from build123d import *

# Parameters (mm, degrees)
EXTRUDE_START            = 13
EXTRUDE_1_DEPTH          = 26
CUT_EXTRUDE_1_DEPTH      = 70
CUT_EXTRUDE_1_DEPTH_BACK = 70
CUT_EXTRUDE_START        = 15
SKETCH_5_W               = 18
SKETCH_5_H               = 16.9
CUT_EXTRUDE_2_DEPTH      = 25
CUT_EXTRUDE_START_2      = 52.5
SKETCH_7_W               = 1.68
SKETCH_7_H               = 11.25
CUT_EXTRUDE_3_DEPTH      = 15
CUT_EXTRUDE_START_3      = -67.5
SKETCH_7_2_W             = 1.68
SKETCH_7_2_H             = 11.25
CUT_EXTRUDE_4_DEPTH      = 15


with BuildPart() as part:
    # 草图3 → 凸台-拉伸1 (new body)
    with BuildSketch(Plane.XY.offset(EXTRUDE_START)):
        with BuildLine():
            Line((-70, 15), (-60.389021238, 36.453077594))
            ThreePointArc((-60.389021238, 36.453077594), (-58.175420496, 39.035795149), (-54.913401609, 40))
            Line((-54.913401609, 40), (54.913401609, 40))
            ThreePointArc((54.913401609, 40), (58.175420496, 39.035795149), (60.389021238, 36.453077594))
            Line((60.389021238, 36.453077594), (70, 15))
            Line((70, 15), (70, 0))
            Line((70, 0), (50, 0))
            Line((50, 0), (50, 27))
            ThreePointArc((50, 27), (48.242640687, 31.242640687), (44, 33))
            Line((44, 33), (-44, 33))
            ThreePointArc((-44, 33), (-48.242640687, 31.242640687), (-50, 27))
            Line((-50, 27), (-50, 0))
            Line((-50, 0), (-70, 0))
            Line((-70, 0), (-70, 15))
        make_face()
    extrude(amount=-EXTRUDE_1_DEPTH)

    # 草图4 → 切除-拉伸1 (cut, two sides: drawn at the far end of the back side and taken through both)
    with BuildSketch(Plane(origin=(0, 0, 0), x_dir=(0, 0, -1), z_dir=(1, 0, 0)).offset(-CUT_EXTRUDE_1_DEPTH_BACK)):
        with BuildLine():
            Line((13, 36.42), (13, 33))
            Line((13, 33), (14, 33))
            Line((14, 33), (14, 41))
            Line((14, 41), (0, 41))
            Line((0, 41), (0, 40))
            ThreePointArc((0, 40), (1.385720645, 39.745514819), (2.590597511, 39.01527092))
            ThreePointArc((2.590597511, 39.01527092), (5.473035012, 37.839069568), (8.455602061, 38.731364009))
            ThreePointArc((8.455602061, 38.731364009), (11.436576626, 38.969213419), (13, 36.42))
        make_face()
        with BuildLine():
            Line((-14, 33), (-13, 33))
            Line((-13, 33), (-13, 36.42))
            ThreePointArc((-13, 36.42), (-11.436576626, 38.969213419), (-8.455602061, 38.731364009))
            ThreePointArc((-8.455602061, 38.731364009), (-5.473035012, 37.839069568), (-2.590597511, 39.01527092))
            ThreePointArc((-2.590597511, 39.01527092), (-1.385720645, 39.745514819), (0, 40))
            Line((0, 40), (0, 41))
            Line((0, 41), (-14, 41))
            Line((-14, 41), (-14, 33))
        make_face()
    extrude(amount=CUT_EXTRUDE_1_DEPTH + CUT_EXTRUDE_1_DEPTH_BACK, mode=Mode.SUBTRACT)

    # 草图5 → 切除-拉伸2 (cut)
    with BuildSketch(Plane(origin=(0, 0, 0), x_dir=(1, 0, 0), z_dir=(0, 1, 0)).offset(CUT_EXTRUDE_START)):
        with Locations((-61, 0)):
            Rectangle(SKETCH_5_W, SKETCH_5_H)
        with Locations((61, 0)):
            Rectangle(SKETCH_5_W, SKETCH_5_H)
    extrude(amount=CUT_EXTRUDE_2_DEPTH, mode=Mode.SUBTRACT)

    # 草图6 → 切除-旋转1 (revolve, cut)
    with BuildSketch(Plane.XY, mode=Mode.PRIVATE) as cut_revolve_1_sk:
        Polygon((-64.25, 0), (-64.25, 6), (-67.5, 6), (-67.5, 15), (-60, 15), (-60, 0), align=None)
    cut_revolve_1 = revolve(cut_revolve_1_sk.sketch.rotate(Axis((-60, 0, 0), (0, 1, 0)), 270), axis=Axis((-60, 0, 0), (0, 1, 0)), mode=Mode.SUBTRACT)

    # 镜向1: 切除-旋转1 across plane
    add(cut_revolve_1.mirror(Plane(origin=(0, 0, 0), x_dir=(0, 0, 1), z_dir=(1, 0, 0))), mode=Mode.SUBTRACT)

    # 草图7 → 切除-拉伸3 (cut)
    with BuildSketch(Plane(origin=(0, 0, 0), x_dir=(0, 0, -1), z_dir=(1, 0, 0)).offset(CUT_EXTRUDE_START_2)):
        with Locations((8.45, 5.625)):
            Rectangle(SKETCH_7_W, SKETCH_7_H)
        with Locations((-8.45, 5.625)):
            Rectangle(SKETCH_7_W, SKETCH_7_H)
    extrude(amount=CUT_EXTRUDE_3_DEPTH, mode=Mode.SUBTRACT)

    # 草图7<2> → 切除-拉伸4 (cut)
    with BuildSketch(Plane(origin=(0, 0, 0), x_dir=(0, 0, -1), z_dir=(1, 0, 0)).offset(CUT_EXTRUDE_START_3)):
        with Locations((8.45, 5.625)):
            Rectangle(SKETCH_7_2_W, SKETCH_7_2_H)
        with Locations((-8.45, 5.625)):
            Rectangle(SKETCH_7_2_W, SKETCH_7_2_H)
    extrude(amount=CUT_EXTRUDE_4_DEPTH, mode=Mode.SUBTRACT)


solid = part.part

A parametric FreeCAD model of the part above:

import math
import FreeCAD as App
import Part
import Sketcher
from FreeCAD import Vector


def add_polygon(sketch, points):
    """Adds a closed chain of lines whose ends are joined by coincident constraints."""
    first, n = sketch.GeometryCount, len(points)
    for a, b in zip(points, points[1:] + points[:1]):
        sketch.addGeometry(Part.LineSegment(App.Vector(*a, 0), App.Vector(*b, 0)), False)
    for i in range(n):
        sketch.addConstraint(Sketcher.Constraint("Coincident", first + i, 2, first + (i + 1) % n, 1))

doc = App.newDocument("Part")
body = doc.addObject("PartDesign::Body", "Body")

# Sketch on XY plane
sketch1 = body.newObject("Sketcher::SketchObject", "Sketch")
sketch1.AttachmentSupport = (doc.getObject("XY_Plane"), [""])
sketch1.MapMode = "FlatFace"
sketch1.AttachmentOffset = App.Placement(Vector(0, 0, 13), App.Rotation())
sketch1.addGeometry([
    Part.LineSegment(Vector(-60, 36, 0), Vector(-70, 15, 0)),  # 0
    Part.LineSegment(Vector(-70, 15, 0), Vector(-70, 0, 0)),  # 1
    Part.LineSegment(Vector(-70, 0, 0), Vector(-50, 0, 0)),  # 2
    Part.LineSegment(Vector(-50, 0, 0), Vector(-50, 27, 0)),  # 3
    Part.ArcOfCircle(Part.Circle(Vector(-44, 27, 0), Vector(0, 0, 1), 6), math.radians(90), math.radians(180)),  # 4
    Part.LineSegment(Vector(-44, 33, 0), Vector(44, 33, 0)),  # 5
    Part.ArcOfCircle(Part.Circle(Vector(44, 27, 0), Vector(0, 0, 1), 6), math.radians(0), math.radians(90)),  # 6
    Part.LineSegment(Vector(50, 27, 0), Vector(50, 0, 0)),  # 7
    Part.LineSegment(Vector(50, 0, 0), Vector(70, 0, 0)),  # 8
    Part.LineSegment(Vector(70, 0, 0), Vector(70, 15, 0)),  # 9
    Part.LineSegment(Vector(70, 15, 0), Vector(60, 36, 0)),  # 10
    Part.ArcOfCircle(Part.Circle(Vector(55, 34, 0), Vector(0, 0, 1), 6), math.radians(24), math.radians(90)),  # 11
    Part.LineSegment(Vector(55, 40, 0), Vector(-55, 40, 0)),  # 12
    Part.ArcOfCircle(Part.Circle(Vector(-55, 34, 0), Vector(0, 0, 1), 6), math.radians(90), math.radians(156)),  # 13
], False)
sketch1.addConstraint([
    Sketcher.Constraint("Coincident", 0, 2, 1, 1),
    Sketcher.Constraint("Coincident", 1, 2, 2, 1),
    Sketcher.Constraint("Coincident", 2, 2, 3, 1),
    Sketcher.Constraint("Tangent", 3, 2, 4, 2),
    Sketcher.Constraint("Tangent", 4, 1, 5, 1),
    Sketcher.Constraint("Tangent", 5, 2, 6, 2),
    Sketcher.Constraint("Tangent", 6, 1, 7, 1),
    Sketcher.Constraint("Coincident", 7, 2, 8, 1),
    Sketcher.Constraint("Coincident", 8, 2, 9, 1),
    Sketcher.Constraint("Coincident", 9, 2, 10, 1),
    Sketcher.Constraint("Tangent", 10, 2, 11, 1),
    Sketcher.Constraint("Tangent", 11, 2, 12, 1),
    Sketcher.Constraint("Tangent", 12, 2, 13, 1),
    Sketcher.Constraint("Tangent", 13, 2, 0, 1),
    Sketcher.Constraint("Vertical", 1),
    Sketcher.Constraint("Horizontal", 2),
    Sketcher.Constraint("Vertical", 3),
    Sketcher.Constraint("Horizontal", 5),
    Sketcher.Constraint("Vertical", 7),
    Sketcher.Constraint("Horizontal", 8),
    Sketcher.Constraint("Vertical", 9),
    Sketcher.Constraint("Horizontal", 12),
    Sketcher.Constraint("Equal", 4, 6),
    Sketcher.Constraint("Equal", 6, 11),
    Sketcher.Constraint("Equal", 11, 13),
    Sketcher.Constraint("Symmetric", 2, 2, 7, 2, -1, 1),
    Sketcher.Constraint("Symmetric", 1, 2, 8, 2, -2),
    Sketcher.Constraint("Symmetric", 10, 2, 13, 2, -2),
    Sketcher.Constraint("Radius", 4, 6.0),
    Sketcher.Constraint("DistanceX", 2, 1, 2, 2, 20.0),
    Sketcher.Constraint("DistanceX", 5, 1, 5, 2, 88.0),
    Sketcher.Constraint("DistanceY", 1, 2, 1, 1, 15.0),
    Sketcher.Constraint("DistanceY", 3, 1, 3, 2, 27.0),
    Sketcher.Constraint("DistanceY", -1, 1, 11, 3, 34.0),
    Sketcher.Constraint("DistanceX", -1, 1, 11, 3, 54.913402),
])
pad1 = body.newObject("PartDesign::Pad", "Pad")
pad1.Profile = sketch1
pad1.Length = 26
pad1.Reversed = True

# Sketch on YZ plane
sketch2 = body.newObject("Sketcher::SketchObject", "Sketch001")
sketch2.AttachmentSupport = (doc.getObject("YZ_Plane"), [""])
sketch2.MapMode = "FlatFace"
sketch2.addGeometry([
    Part.LineSegment(Vector(36.4, -13, 0), Vector(33, -13, 0)),  # 0
    Part.LineSegment(Vector(33, -13, 0), Vector(33, -14, 0)),  # 1
    Part.LineSegment(Vector(33, -14, 0), Vector(41, -14, 0)),  # 2
    Part.LineSegment(Vector(41, -14, 0), Vector(41, 14, 0)),  # 3
    Part.LineSegment(Vector(41, 14, 0), Vector(33, 14, 0)),  # 4
    Part.LineSegment(Vector(33, 14, 0), Vector(33, 13, 0)),  # 5
    Part.LineSegment(Vector(33, 13, 0), Vector(36.4, 13, 0)),  # 6
    Part.ArcOfCircle(Part.Circle(Vector(36.4, 10.1, 0), Vector(0, 0, 1), 2.9), math.radians(-36), math.radians(90)),  # 7
    Part.ArcOfCircle(Part.Circle(Vector(42.5, 5.7, 0), Vector(0, 0, 1), 4.7), math.radians(144), math.radians(222)),  # 8
    Part.ArcOfCircle(Part.Circle(Vector(36.1, 0, 0), Vector(0, 0, 1), 3.9), math.radians(0), math.radians(42)),  # 9
    Part.ArcOfCircle(Part.Circle(Vector(36.1, 0, 0), Vector(0, 0, 1), 3.9), math.radians(-42), math.radians(0)),  # 10
    Part.ArcOfCircle(Part.Circle(Vector(42.5, -5.7, 0), Vector(0, 0, 1), 4.7), math.radians(138), math.radians(216)),  # 11
    Part.ArcOfCircle(Part.Circle(Vector(36.4, -10.1, 0), Vector(0, 0, 1), 2.9), math.radians(-90), math.radians(36)),  # 12
], False)
sketch2.addConstraint([
    Sketcher.Constraint("Coincident", 0, 2, 1, 1),
    Sketcher.Constraint("Coincident", 1, 2, 2, 1),
    Sketcher.Constraint("Coincident", 2, 2, 3, 1),
    Sketcher.Constraint("Coincident", 3, 2, 4, 1),
    Sketcher.Constraint("Coincident", 4, 2, 5, 1),
    Sketcher.Constraint("Coincident", 5, 2, 6, 1),
    Sketcher.Constraint("Tangent", 6, 2, 7, 2),
    Sketcher.Constraint("Tangent", 7, 1, 8, 1),
    Sketcher.Constraint("Tangent", 8, 2, 9, 2),
    Sketcher.Constraint("Tangent", 9, 1, 10, 2),
    Sketcher.Constraint("Tangent", 10, 1, 11, 1),
    Sketcher.Constraint("Tangent", 11, 2, 12, 2),
    Sketcher.Constraint("Tangent", 12, 1, 0, 1),
    Sketcher.Constraint("Horizontal", 0),
    Sketcher.Constraint("Vertical", 1),
    Sketcher.Constraint("Horizontal", 2),
    Sketcher.Constraint("Vertical", 3),
    Sketcher.Constraint("Horizontal", 4),
    Sketcher.Constraint("Vertical", 5),
    Sketcher.Constraint("Horizontal", 6),
    Sketcher.Constraint("Equal", 9, 10),
    Sketcher.Constraint("Equal", 8, 11),
    Sketcher.Constraint("Equal", 7, 12),
    Sketcher.Constraint("Symmetric", 8, 3, 11, 3, -1),
    Sketcher.Constraint("Symmetric", 1, 2, 4, 2, -1),
    Sketcher.Constraint("PointOnObject", 9, 1, -1),
    Sketcher.Constraint("Vertical", 7, 3, 12, 3),
    Sketcher.Constraint("Radius", 9, 3.9),
    Sketcher.Constraint("DistanceX", 2, 1, 2, 2, 8.0),
    Sketcher.Constraint("DistanceY", 1, 2, 1, 1, 1.0),
    Sketcher.Constraint("DistanceY", 3, 1, 3, 2, 28.0),
    Sketcher.Constraint("Radius", 7, 2.86),
    Sketcher.Constraint("Radius", 8, 4.68),
    Sketcher.Constraint("DistanceX", -1, 1, 0, 2, 33.0),
    Sketcher.Constraint("DistanceX", -1, 1, 9, 1, 40.0),
    Sketcher.Constraint("DistanceX", 0, 2, 0, 1, 3.42),
])
pocket1 = body.newObject("PartDesign::Pocket", "Pocket")
pocket1.Profile = sketch2
pocket1.Type = "TwoLengths"
pocket1.Length = 70
pocket1.Length2 = 70
pocket1.Reversed = True

# Sketch on XZ plane
sketch3 = body.newObject("Sketcher::SketchObject", "Sketch002")
sketch3.AttachmentSupport = (doc.getObject("XZ_Plane"), [""])
sketch3.MapMode = "FlatFace"
sketch3.AttachmentOffset = App.Placement(Vector(0, 0, -15), App.Rotation())
add_polygon(sketch3, [(-70, -8), (-70, 8), (-52, 8), (-52, -8)])  # lines 0-3
add_polygon(sketch3, [(52, -8), (52, 8), (70, 8), (70, -8)])  # lines 4-7
sketch3.addConstraint([
    Sketcher.Constraint("Vertical", 0),
    Sketcher.Constraint("Horizontal", 1),
    Sketcher.Constraint("Vertical", 2),
    Sketcher.Constraint("Horizontal", 3),
    Sketcher.Constraint("Vertical", 4),
    Sketcher.Constraint("Horizontal", 5),
    Sketcher.Constraint("Vertical", 6),
    Sketcher.Constraint("Horizontal", 7),
    Sketcher.Constraint("Symmetric", 2, 2, 4, 2, -1, 1),
    Sketcher.Constraint("Symmetric", 0, 2, 6, 2, -1, 1),
    Sketcher.Constraint("Horizontal", 1, 2, 4, 2),
    Sketcher.Constraint("DistanceX", 1, 1, 1, 2, 18.0),
    Sketcher.Constraint("DistanceY", 0, 1, 0, 2, 16.9),
    Sketcher.Constraint("DistanceX", 0, 2, -1, 1, 70.0),
])
pocket2 = body.newObject("PartDesign::Pocket", "Pocket001")
pocket2.Profile = sketch3
pocket2.Length = 25

# Sketch on XY plane
sketch4 = body.newObject("Sketcher::SketchObject", "Sketch003")
sketch4.AttachmentSupport = (doc.getObject("XY_Plane"), [""])
sketch4.MapMode = "FlatFace"
add_polygon(sketch4, [(-64.2, 6), (-64.2, 0), (-60, 0), (-60, 15), (-67.5, 15), (-67.5, 6)])  # lines 0-5
sketch4.addGeometry(Part.LineSegment(Vector(-60, 0, 0), Vector(-60, 15, 0)), True)  # axis
sketch4.addConstraint([
    Sketcher.Constraint("Vertical", 0),
    Sketcher.Constraint("Horizontal", 1),
    Sketcher.Constraint("Vertical", 2),
    Sketcher.Constraint("Horizontal", 3),
    Sketcher.Constraint("Vertical", 4),
    Sketcher.Constraint("Horizontal", 5),
    Sketcher.Constraint("Vertical", 6),
    Sketcher.Constraint("Coincident", 6, 1, 1, 2),
    Sketcher.Constraint("PointOnObject", 0, 2, -1),
    Sketcher.Constraint("Horizontal", 3, 2, 6, 2),
    Sketcher.Constraint("DistanceY", 0, 2, 0, 1, 6.0),
    Sketcher.Constraint("DistanceY", 2, 1, 2, 2, 15.0),
    Sketcher.Constraint("DistanceX", 3, 2, 3, 1, 7.5),
    Sketcher.Constraint("DistanceX", 1, 2, -1, 1, 60.0),
    Sketcher.Constraint("DistanceX", 1, 1, 1, 2, 4.25),
])
groove = body.newObject("PartDesign::Groove", "Groove")
groove.Profile = sketch4
groove.ReferenceAxis = (sketch4, ["Axis0"])
groove.Angle = 360
doc.recompute()

mirrored = body.newObject("PartDesign::Mirrored", "Mirrored")
mirrored.Originals = [groove]
mirrored.MirrorPlane = (doc.getObject("YZ_Plane"), [""])
body.Tip = mirrored

# Sketch on YZ plane
sketch5 = body.newObject("Sketcher::SketchObject", "Sketch004")
sketch5.AttachmentSupport = (doc.getObject("YZ_Plane"), [""])
sketch5.MapMode = "FlatFace"
sketch5.AttachmentOffset = App.Placement(Vector(0, 0, 52.5), App.Rotation())
add_polygon(sketch5, [(11.2, -7.6), (0, -7.6), (0, -9.3), (11.2, -9.3)])  # lines 0-3
add_polygon(sketch5, [(11.2, 9.3), (0, 9.3), (0, 7.6), (11.2, 7.6)])  # lines 4-7
sketch5.addConstraint([
    Sketcher.Constraint("Horizontal", 0),
    Sketcher.Constraint("Vertical", 1),
    Sketcher.Constraint("Horizontal", 2),
    Sketcher.Constraint("Vertical", 3),
    Sketcher.Constraint("Horizontal", 4),
    Sketcher.Constraint("Vertical", 5),
    Sketcher.Constraint("Horizontal", 6),
    Sketcher.Constraint("Vertical", 7),
    Sketcher.Constraint("Symmetric", 1, 2, 4, 2, -1, 1),
    Sketcher.Constraint("Symmetric", 0, 2, 5, 2, -1),
    Sketcher.Constraint("Vertical", 3, 2, 6, 2),
    Sketcher.Constraint("DistanceX", 0, 2, 0, 1, 11.25),
    Sketcher.Constraint("DistanceY", 1, 2, 1, 1, 1.68),
    Sketcher.Constraint("DistanceY", 0, 2, 4, 2, 16.9),
])
pocket3 = body.newObject("PartDesign::Pocket", "Pocket002")
pocket3.Profile = sketch5
pocket3.Length = 15
pocket3.Reversed = True

# Sketch on YZ plane
sketch6 = body.newObject("Sketcher::SketchObject", "Sketch005")
sketch6.AttachmentSupport = (doc.getObject("YZ_Plane"), [""])
sketch6.MapMode = "FlatFace"
sketch6.AttachmentOffset = App.Placement(Vector(0, 0, -67.5), App.Rotation())
add_polygon(sketch6, [(11.2, -7.6), (0, -7.6), (0, -9.3), (11.2, -9.3)])  # lines 0-3
add_polygon(sketch6, [(11.2, 9.3), (0, 9.3), (0, 7.6), (11.2, 7.6)])  # lines 4-7
sketch6.addConstraint([
    Sketcher.Constraint("Horizontal", 0),
    Sketcher.Constraint("Vertical", 1),
    Sketcher.Constraint("Horizontal", 2),
    Sketcher.Constraint("Vertical", 3),
    Sketcher.Constraint("Horizontal", 4),
    Sketcher.Constraint("Vertical", 5),
    Sketcher.Constraint("Horizontal", 6),
    Sketcher.Constraint("Vertical", 7),
    Sketcher.Constraint("Symmetric", 1, 2, 4, 2, -1, 1),
    Sketcher.Constraint("Symmetric", 0, 2, 5, 2, -1),
    Sketcher.Constraint("Vertical", 3, 2, 6, 2),
    Sketcher.Constraint("DistanceX", 0, 2, 0, 1, 11.25),
    Sketcher.Constraint("DistanceY", 1, 2, 1, 1, 1.68),
    Sketcher.Constraint("DistanceY", 0, 2, 4, 2, 16.9),
])
pocket4 = body.newObject("PartDesign::Pocket", "Pocket003")
pocket4.Profile = sketch6
pocket4.Length = 15
pocket4.Reversed = True

doc.recompute()
